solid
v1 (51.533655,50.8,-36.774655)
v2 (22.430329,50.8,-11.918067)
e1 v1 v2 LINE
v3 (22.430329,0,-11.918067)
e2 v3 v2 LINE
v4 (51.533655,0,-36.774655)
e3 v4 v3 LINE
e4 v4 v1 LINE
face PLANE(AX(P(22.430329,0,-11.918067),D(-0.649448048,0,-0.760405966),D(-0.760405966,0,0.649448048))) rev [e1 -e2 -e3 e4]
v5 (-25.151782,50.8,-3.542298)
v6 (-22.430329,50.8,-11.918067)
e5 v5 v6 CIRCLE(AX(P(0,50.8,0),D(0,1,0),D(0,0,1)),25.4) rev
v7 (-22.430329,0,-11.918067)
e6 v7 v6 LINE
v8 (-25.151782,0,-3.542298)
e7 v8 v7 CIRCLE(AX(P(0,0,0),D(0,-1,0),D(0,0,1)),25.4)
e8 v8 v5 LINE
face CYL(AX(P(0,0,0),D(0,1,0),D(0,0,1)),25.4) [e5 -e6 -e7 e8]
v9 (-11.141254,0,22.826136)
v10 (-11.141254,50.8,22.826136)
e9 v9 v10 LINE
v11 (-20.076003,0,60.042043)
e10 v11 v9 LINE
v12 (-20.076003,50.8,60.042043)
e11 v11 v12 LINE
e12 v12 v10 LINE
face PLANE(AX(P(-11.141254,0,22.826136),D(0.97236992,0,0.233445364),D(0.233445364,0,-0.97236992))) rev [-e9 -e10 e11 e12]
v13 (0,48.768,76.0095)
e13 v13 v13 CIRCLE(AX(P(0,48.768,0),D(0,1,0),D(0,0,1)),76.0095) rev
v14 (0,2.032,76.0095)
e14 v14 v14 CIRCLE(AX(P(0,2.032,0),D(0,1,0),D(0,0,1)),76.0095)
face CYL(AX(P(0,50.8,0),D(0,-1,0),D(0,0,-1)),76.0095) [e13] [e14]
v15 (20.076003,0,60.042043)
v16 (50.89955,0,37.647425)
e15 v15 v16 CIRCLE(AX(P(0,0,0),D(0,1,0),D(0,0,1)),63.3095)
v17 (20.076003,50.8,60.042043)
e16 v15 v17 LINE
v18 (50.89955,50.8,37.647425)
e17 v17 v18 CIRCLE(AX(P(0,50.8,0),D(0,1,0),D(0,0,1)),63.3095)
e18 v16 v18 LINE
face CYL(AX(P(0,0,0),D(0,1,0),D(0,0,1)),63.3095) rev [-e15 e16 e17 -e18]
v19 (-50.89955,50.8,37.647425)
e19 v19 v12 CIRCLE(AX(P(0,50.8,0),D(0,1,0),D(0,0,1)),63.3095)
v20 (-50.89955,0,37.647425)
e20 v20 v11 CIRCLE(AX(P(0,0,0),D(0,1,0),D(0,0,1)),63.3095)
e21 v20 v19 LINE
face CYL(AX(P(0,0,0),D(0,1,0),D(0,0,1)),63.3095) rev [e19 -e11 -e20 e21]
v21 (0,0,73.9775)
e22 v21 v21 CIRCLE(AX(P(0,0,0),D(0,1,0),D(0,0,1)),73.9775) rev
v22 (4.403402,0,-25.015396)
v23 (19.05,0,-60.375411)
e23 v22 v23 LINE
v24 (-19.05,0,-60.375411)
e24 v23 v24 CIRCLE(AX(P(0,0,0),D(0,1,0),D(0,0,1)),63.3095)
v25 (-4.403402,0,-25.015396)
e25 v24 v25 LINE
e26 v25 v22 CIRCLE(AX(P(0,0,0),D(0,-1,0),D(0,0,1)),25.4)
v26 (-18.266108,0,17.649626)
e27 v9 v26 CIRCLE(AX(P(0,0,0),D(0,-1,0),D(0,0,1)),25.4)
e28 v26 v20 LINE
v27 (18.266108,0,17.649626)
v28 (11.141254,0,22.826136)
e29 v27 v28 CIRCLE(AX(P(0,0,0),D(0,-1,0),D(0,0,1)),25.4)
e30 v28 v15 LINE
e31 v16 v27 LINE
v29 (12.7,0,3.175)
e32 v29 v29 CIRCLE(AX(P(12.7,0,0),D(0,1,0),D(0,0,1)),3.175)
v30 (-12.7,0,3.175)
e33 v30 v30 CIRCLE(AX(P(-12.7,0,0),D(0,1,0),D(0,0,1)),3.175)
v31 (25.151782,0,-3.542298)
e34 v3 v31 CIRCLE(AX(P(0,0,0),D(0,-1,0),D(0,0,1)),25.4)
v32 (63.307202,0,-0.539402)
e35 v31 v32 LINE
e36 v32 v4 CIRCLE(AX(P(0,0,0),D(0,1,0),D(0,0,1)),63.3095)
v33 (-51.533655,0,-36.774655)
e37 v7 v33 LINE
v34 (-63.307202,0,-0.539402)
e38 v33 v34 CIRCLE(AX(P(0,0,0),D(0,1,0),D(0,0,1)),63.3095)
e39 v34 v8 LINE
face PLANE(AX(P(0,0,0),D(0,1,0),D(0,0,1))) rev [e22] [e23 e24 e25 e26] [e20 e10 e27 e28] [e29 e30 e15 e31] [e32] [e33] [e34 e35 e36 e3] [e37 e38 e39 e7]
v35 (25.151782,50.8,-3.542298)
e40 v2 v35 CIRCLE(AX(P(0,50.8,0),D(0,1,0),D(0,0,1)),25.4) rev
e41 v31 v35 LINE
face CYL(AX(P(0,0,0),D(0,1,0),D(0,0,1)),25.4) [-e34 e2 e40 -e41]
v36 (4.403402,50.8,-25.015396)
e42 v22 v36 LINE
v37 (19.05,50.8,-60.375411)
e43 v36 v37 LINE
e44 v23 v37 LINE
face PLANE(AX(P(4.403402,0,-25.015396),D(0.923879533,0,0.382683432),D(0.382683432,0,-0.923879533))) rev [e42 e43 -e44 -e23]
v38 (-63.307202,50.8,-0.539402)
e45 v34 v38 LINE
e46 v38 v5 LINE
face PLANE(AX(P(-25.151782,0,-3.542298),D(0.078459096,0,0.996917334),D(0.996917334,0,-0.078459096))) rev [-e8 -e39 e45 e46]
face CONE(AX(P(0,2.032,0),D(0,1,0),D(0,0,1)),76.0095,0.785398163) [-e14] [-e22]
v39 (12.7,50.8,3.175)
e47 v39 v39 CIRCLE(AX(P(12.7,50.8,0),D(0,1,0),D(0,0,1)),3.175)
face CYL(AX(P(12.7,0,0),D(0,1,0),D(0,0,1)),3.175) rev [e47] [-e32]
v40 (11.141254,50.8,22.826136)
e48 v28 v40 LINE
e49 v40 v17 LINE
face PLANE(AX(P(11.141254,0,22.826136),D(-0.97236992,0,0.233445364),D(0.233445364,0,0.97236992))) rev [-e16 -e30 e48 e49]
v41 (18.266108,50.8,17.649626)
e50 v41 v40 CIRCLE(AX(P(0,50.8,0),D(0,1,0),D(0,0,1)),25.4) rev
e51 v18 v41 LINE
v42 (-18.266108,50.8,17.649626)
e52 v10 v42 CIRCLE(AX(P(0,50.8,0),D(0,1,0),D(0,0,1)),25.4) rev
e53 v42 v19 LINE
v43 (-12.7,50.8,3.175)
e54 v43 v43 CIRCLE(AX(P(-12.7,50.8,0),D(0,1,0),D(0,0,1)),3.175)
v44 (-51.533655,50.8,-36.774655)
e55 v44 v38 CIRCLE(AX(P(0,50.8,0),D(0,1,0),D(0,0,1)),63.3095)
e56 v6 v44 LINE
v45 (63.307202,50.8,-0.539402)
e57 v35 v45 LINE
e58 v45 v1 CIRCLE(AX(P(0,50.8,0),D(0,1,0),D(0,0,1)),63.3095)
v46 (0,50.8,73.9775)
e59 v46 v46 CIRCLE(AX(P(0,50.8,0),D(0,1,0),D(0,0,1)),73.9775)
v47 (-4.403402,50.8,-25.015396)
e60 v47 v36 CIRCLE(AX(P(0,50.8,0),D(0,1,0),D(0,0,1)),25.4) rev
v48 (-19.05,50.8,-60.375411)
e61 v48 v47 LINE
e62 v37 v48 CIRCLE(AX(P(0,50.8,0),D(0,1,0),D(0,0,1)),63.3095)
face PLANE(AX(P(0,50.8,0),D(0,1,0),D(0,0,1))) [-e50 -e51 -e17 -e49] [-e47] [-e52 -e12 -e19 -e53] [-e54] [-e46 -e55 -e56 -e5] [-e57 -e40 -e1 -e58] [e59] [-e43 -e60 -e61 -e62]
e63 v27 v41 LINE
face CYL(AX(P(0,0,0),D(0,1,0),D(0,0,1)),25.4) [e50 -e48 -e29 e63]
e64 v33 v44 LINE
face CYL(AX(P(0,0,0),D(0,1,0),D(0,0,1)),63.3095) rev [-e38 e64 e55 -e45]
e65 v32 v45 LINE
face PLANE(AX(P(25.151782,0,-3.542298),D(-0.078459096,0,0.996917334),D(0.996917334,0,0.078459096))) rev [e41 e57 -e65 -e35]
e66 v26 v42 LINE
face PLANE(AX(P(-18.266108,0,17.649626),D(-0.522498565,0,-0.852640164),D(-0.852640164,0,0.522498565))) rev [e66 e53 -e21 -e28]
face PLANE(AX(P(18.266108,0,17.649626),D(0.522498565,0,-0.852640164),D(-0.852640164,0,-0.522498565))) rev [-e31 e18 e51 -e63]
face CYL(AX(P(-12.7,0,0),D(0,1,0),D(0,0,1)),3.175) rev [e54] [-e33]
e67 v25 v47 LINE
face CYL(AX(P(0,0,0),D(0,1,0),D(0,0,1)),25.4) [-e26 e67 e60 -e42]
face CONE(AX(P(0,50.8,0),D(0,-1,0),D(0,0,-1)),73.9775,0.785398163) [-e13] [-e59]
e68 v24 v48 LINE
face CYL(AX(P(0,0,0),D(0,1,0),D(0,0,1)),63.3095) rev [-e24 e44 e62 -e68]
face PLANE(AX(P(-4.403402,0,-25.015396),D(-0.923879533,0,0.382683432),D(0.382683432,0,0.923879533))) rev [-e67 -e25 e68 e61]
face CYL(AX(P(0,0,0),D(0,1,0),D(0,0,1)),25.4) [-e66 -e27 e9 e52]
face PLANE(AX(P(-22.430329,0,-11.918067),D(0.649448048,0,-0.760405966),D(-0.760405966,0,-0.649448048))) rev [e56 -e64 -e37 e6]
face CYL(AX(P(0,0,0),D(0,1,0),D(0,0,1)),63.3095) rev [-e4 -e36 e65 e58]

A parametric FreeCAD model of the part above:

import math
import FreeCAD as App
import Part
import Sketcher
from FreeCAD import Vector
Q = App.Units.Quantity


def edges_at(feature, points):
    """Names of the edges that pass closest to the given points."""
    edges = feature.Shape.Edges
    near = lambda p: min(range(len(edges)), key=lambda i: edges[i].distToShape(Part.Vertex(*p))[0])
    return sorted({f"Edge{near(p) + 1}" for p in points})

doc = App.newDocument("Part")
params = doc.addObject("Spreadsheet::Sheet", "Params")
for row, (alias, value) in enumerate([
    ("sketch1_diameter", "5.985 in"),
    ("pad1_length", "2 in"),
    ("chamfer_size", "0.08 in"),
    ("sketch2_diameter", "0.25 in"),
    ("sketch3_radius", "1 in"),
], start=1):
    params.set(f"A{row}", alias)
    params.set(f"B{row}", "=" + value)
    params.setAlias(f"B{row}", alias)

body = doc.addObject("PartDesign::Body", "Body")

sketch1 = body.newObject("Sketcher::SketchObject", "Sketch")
sketch1.AttachmentSupport = (doc.getObject("XZ_Plane"), [""])
sketch1.MapMode = "FlatFace"
sketch1.addGeometry(Part.Circle(Vector(0, 0, 0), Vector(0, 0, 1), 76), False)
sketch1.addConstraint(Sketcher.Constraint("Coincident", 0, 3, -1, 1))
sketch1.addConstraint(Sketcher.Constraint("Diameter", 0, Q("5.985 in")))
sketch1.setExpression("Constraints[1]", "Params.sketch1_diameter")
pad1 = body.newObject("PartDesign::Pad", "Pad")
pad1.Profile = sketch1
pad1.setExpression("Length", "Params.pad1_length")
pad1.Reversed = True
doc.recompute()

chamfer = body.newObject("PartDesign::Chamfer", "Chamfer")
chamfer.Base = (pad1, edges_at(pad1, [(0, 0, -76.01), (0, 50.8, -76.01)]))
chamfer.setExpression("Size", "Params.chamfer_size")

sketch2 = body.newObject("Sketcher::SketchObject", "Sketch001")
sketch2.AttachmentSupport = (doc.getObject("XZ_Plane"), [""])
sketch2.MapMode = "FlatFace"
sketch2.AttachmentOffset = App.Placement(Vector(0, 0, -2 * 25.4), App.Rotation())
sketch2.addGeometry(Part.Circle(Vector(-12.7, 0, 0), Vector(0, 0, 1), 3.2), False)
sketch2.addGeometry(Part.Circle(Vector(12.7, 0, 0), Vector(0, 0, 1), 3.2), False)
sketch2.addConstraint(Sketcher.Constraint("Equal", 0, 1))
sketch2.addConstraint(Sketcher.Constraint("Symmetric", 0, 3, 1, 3, -1, 1))
sketch2.addConstraint(Sketcher.Constraint("PointOnObject", 0, 3, -1))
sketch2.addConstraint(Sketcher.Constraint("Diameter", 0, Q("0.25 in")))
sketch2.addConstraint(Sketcher.Constraint("DistanceX", 0, 3, 1, 3, Q("1 in")))
sketch2.setExpression("Constraints[3]", "Params.sketch2_diameter")
pocket1 = body.newObject("PartDesign::Pocket", "Pocket")
pocket1.Profile = sketch2
pocket1.Type = "ThroughAll"
pocket1.Midplane = True

sketch3 = body.newObject("Sketcher::SketchObject", "Sketch002")
sketch3.AttachmentSupport = (doc.getObject("XZ_Plane"), [""])
sketch3.MapMode = "FlatFace"
sketch3.AttachmentOffset = App.Placement(Vector(0, 0, -2 * 25.4), App.Rotation())
sketch3.addGeometry(Part.LineSegment(Vector(-19, -60, 0), Vector(-4, -25, 0)), False)
sketch3.addGeometry(Part.ArcOfCircle(Part.Circle(Vector(0, 0, 0), Vector(0, 0, 1), 25), math.radians(-99.98), math.radians(-80.02)), False)
sketch3.addGeometry(Part.LineSegment(Vector(4, -25, 0), Vector(19, -60, 0)), False)
sketch3.addGeometry(Part.ArcOfCircle(Part.Circle(Vector(0, 0, 0), Vector(0, 0, 1), 63), math.radians(-108), math.radians(-72)), False)
sketch3.addGeometry(Part.LineSegment(Vector(52, -37, 0), Vector(22, -12, 0)), False)
sketch3.addGeometry(Part.ArcOfCircle(Part.Circle(Vector(0, 0, 0), Vector(0, 0, 1), 25), math.radians(-27.98), math.radians(-8.02)), False)
sketch3.addGeometry(Part.LineSegment(Vector(25, -4, 0), Vector(63, -1, 0)), False)
sketch3.addGeometry(Part.ArcOfCircle(Part.Circle(Vector(0, 0, 0), Vector(0, 0, 1), 63), math.radians(-36), math.radians(0)), False)
sketch3.addGeometry(Part.LineSegment(Vector(51, 38, 0), Vector(18, 18, 0)), False)
sketch3.addGeometry(Part.ArcOfCircle(Part.Circle(Vector(0, 0, 0), Vector(0, 0, 1), 25), math.radians(44.02), math.radians(63.98)), False)
sketch3.addGeometry(Part.LineSegment(Vector(11, 23, 0), Vector(20, 60, 0)), False)
sketch3.addGeometry(Part.ArcOfCircle(Part.Circle(Vector(0, 0, 0), Vector(0, 0, 1), 63), math.radians(36), math.radians(72)), False)
sketch3.addGeometry(Part.LineSegment(Vector(-20, 60, 0), Vector(-11, 23, 0)), False)
sketch3.addGeometry(Part.ArcOfCircle(Part.Circle(Vector(0, 0, 0), Vector(0, 0, 1), 25), math.radians(116.02), math.radians(135.98)), False)
sketch3.addGeometry(Part.LineSegment(Vector(-18, 18, 0), Vector(-51, 38, 0)), False)
sketch3.addGeometry(Part.ArcOfCircle(Part.Circle(Vector(0, 0, 0), Vector(0, 0, 1), 63), math.radians(108), math.radians(144)), False)
sketch3.addGeometry(Part.LineSegment(Vector(-63, -1, 0), Vector(-25, -4, 0)), False)
sketch3.addGeometry(Part.ArcOfCircle(Part.Circle(Vector(0, 0, 0), Vector(0, 0, 1), 25), math.radians(-171.98), math.radians(-152.02)), False)
sketch3.addGeometry(Part.LineSegment(Vector(-22, -12, 0), Vector(-52, -37, 0)), False)
sketch3.addGeometry(Part.ArcOfCircle(Part.Circle(Vector(0, 0, 0), Vector(0, 0, 1), 63), math.radians(-180), math.radians(-144)), False)
sketch3.addConstraint(Sketcher.Constraint("Coincident", 0, 2, 1, 1))
sketch3.addConstraint(Sketcher.Constraint("Coincident", 1, 2, 2, 1))
sketch3.addConstraint(Sketcher.Constraint("Coincident", 2, 2, 3, 2))
sketch3.addConstraint(Sketcher.Constraint("Coincident", 3, 1, 0, 1))
sketch3.addConstraint(Sketcher.Constraint("Coincident", 4, 2, 5, 1))
sketch3.addConstraint(Sketcher.Constraint("Coincident", 5, 2, 6, 1))
sketch3.addConstraint(Sketcher.Constraint("Coincident", 6, 2, 7, 2))
sketch3.addConstraint(Sketcher.Constraint("Coincident", 7, 1, 4, 1))
sketch3.addConstraint(Sketcher.Constraint("Coincident", 8, 2, 9, 1))
sketch3.addConstraint(Sketcher.Constraint("Coincident", 9, 2, 10, 1))
sketch3.addConstraint(Sketcher.Constraint("Coincident", 10, 2, 11, 2))
sketch3.addConstraint(Sketcher.Constraint("Coincident", 11, 1, 8, 1))
sketch3.addConstraint(Sketcher.Constraint("Coincident", 12, 2, 13, 1))
sketch3.addConstraint(Sketcher.Constraint("Coincident", 13, 2, 14, 1))
sketch3.addConstraint(Sketcher.Constraint("Coincident", 14, 2, 15, 2))
sketch3.addConstraint(Sketcher.Constraint("Coincident", 15, 1, 12, 1))
sketch3.addConstraint(Sketcher.Constraint("Coincident", 16, 2, 17, 1))
sketch3.addConstraint(Sketcher.Constraint("Coincident", 17, 2, 18, 1))
sketch3.addConstraint(Sketcher.Constraint("Coincident", 18, 2, 19, 2))
sketch3.addConstraint(Sketcher.Constraint("Coincident", 19, 1, 16, 1))
sketch3.addConstraint(Sketcher.Constraint("Coincident", 1, 3, -1, 1))
sketch3.addConstraint(Sketcher.Constraint("Coincident", 3, 3, -1, 1))
sketch3.addConstraint(Sketcher.Constraint("Coincident", 5, 3, -1, 1))
sketch3.addConstraint(Sketcher.Constraint("Coincident", 7, 3, -1, 1))
sketch3.addConstraint(Sketcher.Constraint("Coincident", 9, 3, -1, 1))
sketch3.addConstraint(Sketcher.Constraint("Coincident", 11, 3, -1, 1))
sketch3.addConstraint(Sketcher.Constraint("Coincident", 13, 3, -1, 1))
sketch3.addConstraint(Sketcher.Constraint("Coincident", 15, 3, -1, 1))
sketch3.addConstraint(Sketcher.Constraint("Coincident", 17, 3, -1, 1))
sketch3.addConstraint(Sketcher.Constraint("Coincident", 19, 3, -1, 1))
sketch3.addConstraint(Sketcher.Constraint("Equal", 1, 5))
sketch3.addConstraint(Sketcher.Constraint("Equal", 3, 7))
sketch3.addConstraint(Sketcher.Constraint("Equal", 5, 9))
sketch3.addConstraint(Sketcher.Constraint("Equal", 7, 11))
sketch3.addConstraint(Sketcher.Constraint("Equal", 9, 13))
sketch3.addConstraint(Sketcher.Constraint("Equal", 11, 15))
sketch3.addConstraint(Sketcher.Constraint("Equal", 13, 17))
sketch3.addConstraint(Sketcher.Constraint("Equal", 15, 19))
sketch3.addConstraint(Sketcher.Constraint("Horizontal", 0, 2, 1, 2))
sketch3.addConstraint(Sketcher.Constraint("Horizontal", 2, 2, 3, 1))
sketch3.addConstraint(Sketcher.Constraint("Horizontal", 9, 2, 12, 2))
sketch3.addConstraint(Sketcher.Constraint("Horizontal", 8, 2, 13, 2))
sketch3.addConstraint(Sketcher.Constraint("Horizontal", 11, 1, 14, 2))
sketch3.addConstraint(Sketcher.Constraint("Horizontal", 10, 2, 15, 1))
sketch3.addConstraint(Sketcher.Constraint("Horizontal", 5, 2, 16, 2))
sketch3.addConstraint(Sketcher.Constraint("Horizontal", 4, 2, 17, 2))
sketch3.addConstraint(Sketcher.Constraint("Horizontal", 7, 1, 18, 2))
sketch3.addConstraint(Sketcher.Constraint("Horizontal", 6, 2, 19, 1))
sketch3.addConstraint(Sketcher.Constraint("Equal", 2, 4))
sketch3.addConstraint(Sketcher.Constraint("Equal", 4, 6))
sketch3.addConstraint(Sketcher.Constraint("Equal", 6, 8))
sketch3.addConstraint(Sketcher.Constraint("Equal", 8, 10))
sketch3.addConstraint(Sketcher.Constraint("Radius", 1, Q("1 in")))
sketch3.addConstraint(Sketcher.Constraint("Angle", 0, Q("67.5 deg")))
sketch3.addConstraint(Sketcher.Constraint("Angle", 4, Q("139.5 deg")))
sketch3.addConstraint(Sketcher.Constraint("Angle", 6, Q("4.5 deg")))
sketch3.addConstraint(Sketcher.Constraint("Angle", 8, Q("-148.5 deg")))
sketch3.addConstraint(Sketcher.Constraint("Angle", 10, Q("76.5 deg")))
sketch3.addConstraint(Sketcher.Constraint("Radius", 3, Q("2.4925 in")))
sketch3.addConstraint(Sketcher.Constraint("DistanceX", 3, 1, 2, 2, Q("1.5 in")))
sketch3.setExpression("Constraints[52]", "Params.sketch3_radius")
pocket2 = body.newObject("PartDesign::Pocket", "Pocket001")
pocket2.Profile = sketch3
pocket2.Type = "ThroughAll"
pocket2.Midplane = True

doc.recompute()
